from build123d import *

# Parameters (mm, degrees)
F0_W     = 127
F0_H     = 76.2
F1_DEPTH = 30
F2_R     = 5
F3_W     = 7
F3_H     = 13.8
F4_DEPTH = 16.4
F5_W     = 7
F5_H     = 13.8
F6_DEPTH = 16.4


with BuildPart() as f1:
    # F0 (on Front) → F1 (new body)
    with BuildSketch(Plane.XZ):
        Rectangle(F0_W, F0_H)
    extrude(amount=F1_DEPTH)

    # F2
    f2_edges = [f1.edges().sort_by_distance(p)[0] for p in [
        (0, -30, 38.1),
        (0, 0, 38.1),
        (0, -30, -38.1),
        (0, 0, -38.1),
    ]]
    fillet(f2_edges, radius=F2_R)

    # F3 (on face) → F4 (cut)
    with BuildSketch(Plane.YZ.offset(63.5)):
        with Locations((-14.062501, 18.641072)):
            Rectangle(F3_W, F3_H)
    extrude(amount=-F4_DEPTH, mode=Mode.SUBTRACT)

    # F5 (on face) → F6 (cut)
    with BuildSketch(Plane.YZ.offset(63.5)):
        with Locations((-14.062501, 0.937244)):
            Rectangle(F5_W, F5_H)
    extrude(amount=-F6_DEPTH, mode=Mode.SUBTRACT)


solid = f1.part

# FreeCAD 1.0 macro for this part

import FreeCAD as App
import Part
import Sketcher

V = App.Vector
Q = App.Units.Quantity


def edges_at(feature, points):
    """Names of the edges that pass closest to the given points."""
    edges = feature.Shape.Edges
    near = lambda p: min(range(len(edges)), key=lambda i: edges[i].distToShape(Part.Vertex(*p))[0])
    return sorted({f"Edge{near(p) + 1}" for p in points})


def add_polygon(sketch, points):
    """Adds a closed chain of lines whose ends are joined by coincident constraints."""
    first, n = sketch.GeometryCount, len(points)
    for a, b in zip(points, points[1:] + points[:1]):
        sketch.addGeometry(Part.LineSegment(App.Vector(*a, 0), App.Vector(*b, 0)), False)
    for i in range(n):
        sketch.addConstraint(Sketcher.Constraint("Coincident", first + i, 2, first + (i + 1) % n, 1))

doc = App.newDocument("Part")
body = doc.addObject("PartDesign::Body", "Body")

sketch1 = body.newObject("Sketcher::SketchObject", "Sketch")
sketch1.AttachmentSupport = (doc.getObject("XZ_Plane"), [""])
sketch1.MapMode = "FlatFace"
add_polygon(sketch1, [(-63.5, 38.1), (-63.5, -38.1), (63.5, -38.1), (63.5, 38.1)])
sketch1.addConstraint(Sketcher.Constraint("Vertical", 0))
sketch1.addConstraint(Sketcher.Constraint("Horizontal", 1))
sketch1.addConstraint(Sketcher.Constraint("Vertical", 2))
sketch1.addConstraint(Sketcher.Constraint("Horizontal", 3))
sketch1.addConstraint(Sketcher.Constraint("Symmetric", 0, 2, 2, 2, -1, 1))
sketch1.addConstraint(Sketcher.Constraint("DistanceX", 1, 1, 1, 2, Q("127 mm")))
sketch1.addConstraint(Sketcher.Constraint("DistanceY", 0, 2, 0, 1, Q("76.2 mm")))
pad1 = body.newObject("PartDesign::Pad", "Pad")
pad1.Profile = sketch1
pad1.Length = 30
doc.recompute()

fillet = body.newObject("PartDesign::Fillet", "Fillet")
fillet.Base = (pad1, edges_at(pad1, [
    (0, -30, 38.1),
    (0, 0, 38.1),
    (0, -30, -38.1),
    (0, 0, -38.1),
]))
fillet.Radius = 5

sketch2 = body.newObject("Sketcher::SketchObject", "Sketch001")
sketch2.AttachmentSupport = (doc.getObject("YZ_Plane"), [""])
sketch2.MapMode = "FlatFace"
sketch2.AttachmentOffset = App.Placement(V(0, 0, 63.5), App.Rotation())
add_polygon(sketch2, [(-17.562501, 25.541072), (-17.562501, 11.741072), (-10.562501, 11.741072), (-10.562501, 25.541072)])
sketch2.addConstraint(Sketcher.Constraint("Vertical", 0))
sketch2.addConstraint(Sketcher.Constraint("Horizontal", 1))
sketch2.addConstraint(Sketcher.Constraint("Vertical", 2))
sketch2.addConstraint(Sketcher.Constraint("Horizontal", 3))
sketch2.addConstraint(Sketcher.Constraint("DistanceX", 1, 1, 1, 2, Q("7 mm")))
sketch2.addConstraint(Sketcher.Constraint("DistanceY", 0, 2, 0, 1, Q("13.8 mm")))
sketch2.addConstraint(Sketcher.Constraint("DistanceX", 0, 2, -1, 1, Q("17.562501 mm")))
sketch2.addConstraint(Sketcher.Constraint("DistanceY", -1, 1, 2, 2, Q("25.541072 mm")))
pocket1 = body.newObject("PartDesign::Pocket", "Pocket")
pocket1.Profile = sketch2
pocket1.Length = 16.4

sketch3 = body.newObject("Sketcher::SketchObject", "Sketch002")
sketch3.AttachmentSupport = (doc.getObject("YZ_Plane"), [""])
sketch3.MapMode = "FlatFace"
sketch3.AttachmentOffset = App.Placement(V(0, 0, 63.5), App.Rotation())
add_polygon(sketch3, [(-17.562501, 7.837244), (-17.562501, -5.962756), (-10.562501, -5.962756), (-10.562501, 7.837244)])
sketch3.addConstraint(Sketcher.Constraint("Vertical", 0))
sketch3.addConstraint(Sketcher.Constraint("Horizontal", 1))
sketch3.addConstraint(Sketcher.Constraint("Vertical", 2))
sketch3.addConstraint(Sketcher.Constraint("Horizontal", 3))
sketch3.addConstraint(Sketcher.Constraint("DistanceX", 1, 1, 1, 2, Q("7 mm")))
sketch3.addConstraint(Sketcher.Constraint("DistanceY", 0, 2, 0, 1, Q("13.8 mm")))
sketch3.addConstraint(Sketcher.Constraint("DistanceX", 0, 2, -1, 1, Q("17.562501 mm")))
sketch3.addConstraint(Sketcher.Constraint("DistanceY", 0, 2, -1, 1, Q("5.962756 mm")))
pocket2 = body.newObject("PartDesign::Pocket", "Pocket001")
pocket2.Profile = sketch3
pocket2.Length = 16.4

doc.recompute()
